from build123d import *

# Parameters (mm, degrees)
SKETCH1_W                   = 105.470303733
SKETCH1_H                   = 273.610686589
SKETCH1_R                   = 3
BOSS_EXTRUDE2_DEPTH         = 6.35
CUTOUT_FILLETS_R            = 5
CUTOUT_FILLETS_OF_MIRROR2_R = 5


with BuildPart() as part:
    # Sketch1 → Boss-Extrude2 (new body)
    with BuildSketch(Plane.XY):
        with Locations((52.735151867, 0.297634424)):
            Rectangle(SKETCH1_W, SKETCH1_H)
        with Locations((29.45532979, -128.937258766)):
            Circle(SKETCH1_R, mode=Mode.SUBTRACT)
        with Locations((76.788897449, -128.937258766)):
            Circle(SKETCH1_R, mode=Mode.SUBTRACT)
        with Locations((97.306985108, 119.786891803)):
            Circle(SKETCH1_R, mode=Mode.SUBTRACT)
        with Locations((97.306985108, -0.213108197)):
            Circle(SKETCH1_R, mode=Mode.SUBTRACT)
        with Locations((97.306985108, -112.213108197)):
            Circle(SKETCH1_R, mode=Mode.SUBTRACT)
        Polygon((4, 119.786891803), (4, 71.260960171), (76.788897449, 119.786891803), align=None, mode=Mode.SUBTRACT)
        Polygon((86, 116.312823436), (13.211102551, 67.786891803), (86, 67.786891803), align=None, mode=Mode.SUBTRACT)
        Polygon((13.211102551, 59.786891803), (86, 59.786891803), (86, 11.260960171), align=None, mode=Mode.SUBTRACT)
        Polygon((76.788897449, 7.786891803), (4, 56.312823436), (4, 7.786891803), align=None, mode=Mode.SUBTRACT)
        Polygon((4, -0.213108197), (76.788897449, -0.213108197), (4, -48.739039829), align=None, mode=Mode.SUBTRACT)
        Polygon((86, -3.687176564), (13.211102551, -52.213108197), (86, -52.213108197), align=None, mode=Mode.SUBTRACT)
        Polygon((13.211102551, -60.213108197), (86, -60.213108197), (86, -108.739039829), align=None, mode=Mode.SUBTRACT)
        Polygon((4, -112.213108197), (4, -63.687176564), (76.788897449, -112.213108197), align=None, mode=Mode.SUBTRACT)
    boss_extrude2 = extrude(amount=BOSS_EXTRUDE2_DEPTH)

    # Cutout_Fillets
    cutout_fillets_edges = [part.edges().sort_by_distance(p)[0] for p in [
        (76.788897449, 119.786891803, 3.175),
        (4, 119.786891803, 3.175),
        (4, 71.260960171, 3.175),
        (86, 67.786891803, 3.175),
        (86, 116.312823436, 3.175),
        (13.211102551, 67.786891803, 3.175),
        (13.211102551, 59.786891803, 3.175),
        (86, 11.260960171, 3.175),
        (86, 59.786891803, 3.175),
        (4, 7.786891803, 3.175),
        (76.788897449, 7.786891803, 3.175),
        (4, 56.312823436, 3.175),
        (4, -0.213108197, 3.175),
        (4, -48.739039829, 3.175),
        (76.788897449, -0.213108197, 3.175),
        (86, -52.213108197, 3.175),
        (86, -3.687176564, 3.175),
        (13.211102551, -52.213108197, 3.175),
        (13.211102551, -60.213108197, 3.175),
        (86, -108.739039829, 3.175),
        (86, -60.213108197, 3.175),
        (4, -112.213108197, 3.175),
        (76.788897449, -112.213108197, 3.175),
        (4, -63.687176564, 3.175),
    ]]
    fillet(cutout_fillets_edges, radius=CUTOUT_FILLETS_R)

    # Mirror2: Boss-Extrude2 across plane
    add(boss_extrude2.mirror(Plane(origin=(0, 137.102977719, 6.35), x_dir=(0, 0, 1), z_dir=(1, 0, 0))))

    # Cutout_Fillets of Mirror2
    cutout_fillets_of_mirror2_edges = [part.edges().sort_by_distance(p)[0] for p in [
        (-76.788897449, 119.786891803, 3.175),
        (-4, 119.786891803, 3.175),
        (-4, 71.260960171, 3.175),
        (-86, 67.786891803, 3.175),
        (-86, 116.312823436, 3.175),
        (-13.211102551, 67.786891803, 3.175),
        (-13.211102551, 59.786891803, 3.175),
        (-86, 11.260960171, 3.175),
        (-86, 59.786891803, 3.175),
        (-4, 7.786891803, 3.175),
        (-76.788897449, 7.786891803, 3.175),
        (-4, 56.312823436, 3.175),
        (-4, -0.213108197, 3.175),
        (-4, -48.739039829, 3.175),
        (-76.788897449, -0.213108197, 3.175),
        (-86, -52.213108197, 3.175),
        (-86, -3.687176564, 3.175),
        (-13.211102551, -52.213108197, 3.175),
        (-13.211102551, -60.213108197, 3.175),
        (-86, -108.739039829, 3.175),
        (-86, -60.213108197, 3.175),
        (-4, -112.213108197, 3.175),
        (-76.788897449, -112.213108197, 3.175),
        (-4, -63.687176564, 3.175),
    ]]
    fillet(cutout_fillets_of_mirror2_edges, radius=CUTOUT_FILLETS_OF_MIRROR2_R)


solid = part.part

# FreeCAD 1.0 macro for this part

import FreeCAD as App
import Part
import Sketcher
Q = App.Units.Quantity


def edges_at(feature, points):
    """Names of the edges that pass closest to the given points."""
    edges = feature.Shape.Edges
    near = lambda p: min(range(len(edges)), key=lambda i: edges[i].distToShape(Part.Vertex(*p))[0])
    return sorted({f"Edge{near(p) + 1}" for p in points})


def add_polygon(sketch, points):
    """Adds a closed chain of lines whose ends are joined by coincident constraints."""
    first, n = sketch.GeometryCount, len(points)
    for a, b in zip(points, points[1:] + points[:1]):
        sketch.addGeometry(Part.LineSegment(App.Vector(*a, 0), App.Vector(*b, 0)), False)
    for i in range(n):
        sketch.addConstraint(Sketcher.Constraint("Coincident", first + i, 2, first + (i + 1) % n, 1))

doc = App.newDocument("Part")
body = doc.addObject("PartDesign::Body", "Body")

sketch1 = body.newObject("Sketcher::SketchObject", "Sketch")
sketch1.AttachmentSupport = (doc.getObject("XY_Plane"), [""])
sketch1.MapMode = "FlatFace"
add_polygon(sketch1, [(0, 137.1), (0, -136.5), (105.5, -136.5), (105.5, 137.1)])
sketch1.addGeometry(Part.Circle(App.Vector(29.5, -128.9, 0), App.Vector(0, 0, 1), 3), False)
add_polygon(sketch1, [(76.8, -112.2), (4, -112.2), (4, -63.7)])
add_polygon(sketch1, [(86, -108.7), (13.2, -60.2), (86, -60.2)])
add_polygon(sketch1, [(4, -48.7), (4, -0.2), (76.8, -0.2)])
add_polygon(sketch1, [(13.2, -52.2), (86, -3.7), (86, -52.2)])
sketch1.addGeometry(Part.Circle(App.Vector(76.8, -128.9, 0), App.Vector(0, 0, 1), 3), False)
sketch1.addGeometry(Part.Circle(App.Vector(97.3, -112.2, 0), App.Vector(0, 0, 1), 3), False)
add_polygon(sketch1, [(4, 56.3), (76.8, 7.8), (4, 7.8)])
add_polygon(sketch1, [(86, 11.3), (13.2, 59.8), (86, 59.8)])
add_polygon(sketch1, [(4, 71.3), (4, 119.8), (76.8, 119.8)])
add_polygon(sketch1, [(13.2, 67.8), (86, 116.3), (86, 67.8)])
sketch1.addGeometry(Part.Circle(App.Vector(97.3, -0.2, 0), App.Vector(0, 0, 1), 3), False)
sketch1.addGeometry(Part.Circle(App.Vector(97.3, 119.8, 0), App.Vector(0, 0, 1), 3), False)
sketch1.addConstraint([
    Sketcher.Constraint("Vertical", 0),
    Sketcher.Constraint("Horizontal", 1),
    Sketcher.Constraint("Vertical", 2),
    Sketcher.Constraint("Horizontal", 3),
    Sketcher.Constraint("Horizontal", 5),
    Sketcher.Constraint("Vertical", 6),
    Sketcher.Constraint("Horizontal", 9),
    Sketcher.Constraint("Vertical", 10),
    Sketcher.Constraint("Vertical", 11),
    Sketcher.Constraint("Horizontal", 12),
    Sketcher.Constraint("Vertical", 15),
    Sketcher.Constraint("Horizontal", 16),
    Sketcher.Constraint("Horizontal", 20),
    Sketcher.Constraint("Vertical", 21),
    Sketcher.Constraint("Horizontal", 23),
    Sketcher.Constraint("Vertical", 24),
    Sketcher.Constraint("Vertical", 25),
    Sketcher.Constraint("Horizontal", 26),
    Sketcher.Constraint("Vertical", 29),
    Sketcher.Constraint("Horizontal", 30),
    Sketcher.Constraint("Equal", 4, 17),
    Sketcher.Constraint("Equal", 17, 18),
    Sketcher.Constraint("Equal", 18, 31),
    Sketcher.Constraint("Equal", 31, 32),
    Sketcher.Constraint("PointOnObject", 0, 2, -2),
    Sketcher.Constraint("Parallel", 7, 8),
    Sketcher.Constraint("Parallel", 13, 14),
    Sketcher.Constraint("Parallel", 8, 19),
    Sketcher.Constraint("Parallel", 19, 22),
    Sketcher.Constraint("Parallel", 14, 27),
    Sketcher.Constraint("Parallel", 27, 28),
    Sketcher.Constraint("Horizontal", 4, 3, 17, 3),
    Sketcher.Constraint("Horizontal", 18, 3, 5, 2),
    Sketcher.Constraint("Horizontal", 31, 3, 11, 2),
    Sketcher.Constraint("Horizontal", 32, 3, 25, 2),
    Sketcher.Constraint("Vertical", 18, 3, 31, 3),
    Sketcher.Constraint("Vertical", 31, 3, 32, 3),
    Sketcher.Constraint("Vertical", 17, 3, 7, 2),
    Sketcher.Constraint("Vertical", 6, 2, 11, 2),
    Sketcher.Constraint("Vertical", 7, 2, 12, 2),
    Sketcher.Constraint("Vertical", 10, 2, 14, 2),
    Sketcher.Constraint("Vertical", 8, 2, 16, 2),
    Sketcher.Constraint("Vertical", 12, 2, 19, 2),
    Sketcher.Constraint("Vertical", 13, 2, 20, 2),
    Sketcher.Constraint("Vertical", 16, 2, 22, 2),
    Sketcher.Constraint("Vertical", 15, 2, 23, 2),
    Sketcher.Constraint("Vertical", 21, 2, 25, 2),
    Sketcher.Constraint("Vertical", 19, 2, 26, 2),
    Sketcher.Constraint("Vertical", 24, 2, 28, 2),
    Sketcher.Constraint("Vertical", 22, 2, 30, 2),
    Sketcher.Constraint("Equal", 5, 9),
    Sketcher.Constraint("Equal", 10, 11),
    Sketcher.Constraint("Diameter", 4, Q("6 mm")),
    Sketcher.Constraint("DistanceX", -1, 1, 5, 2, Q("4 mm")),
    Sketcher.Constraint("DistanceX", -1, 1, 9, 2, Q("86 mm")),
    Sketcher.Constraint("DistanceY", 18, 3, 31, 3, Q("112 mm")),
    Sketcher.Constraint("DistanceY", 31, 3, 32, 3, Q("120 mm")),
    Sketcher.Constraint("DistanceY", 5, 2, 8, 2, Q("52 mm")),
    Sketcher.Constraint("DistanceY", 9, 2, 15, 2, Q("8 mm")),
    Sketcher.Constraint("DistanceY", 12, 2, 19, 2, Q("8 mm")),
    Sketcher.Constraint("DistanceY", 20, 2, 22, 2, Q("52 mm")),
    Sketcher.Constraint("DistanceY", 23, 2, 29, 2, Q("8 mm")),
    Sketcher.Constraint("DistanceY", 6, 1, 6, 2, Q("48.525932 mm")),
    Sketcher.Constraint("DistanceY", 0, 2, 18, 3, Q("24.294601 mm")),
    Sketcher.Constraint("DistanceX", 1, 1, 1, 2, Q("105.470304 mm")),
    Sketcher.Constraint("DistanceX", 5, 2, 5, 1, Q("72.788897 mm")),
    Sketcher.Constraint("DistanceY", 0, 2, 0, 1, Q("273.610687 mm")),
    Sketcher.Constraint("DistanceX", -1, 1, 4, 3, Q("29.45533 mm")),
    Sketcher.Constraint("DistanceY", 4, 3, -1, 1, Q("128.937259 mm")),
    Sketcher.Constraint("DistanceY", 18, 3, -1, 1, Q("112.213108 mm")),
    Sketcher.Constraint("DistanceX", 18, 3, 1, 2, Q("8.163319 mm")),
])
pad1 = body.newObject("PartDesign::Pad", "Pad")
pad1.Profile = sketch1
pad1.Length = 6.35
doc.recompute()

fillet = body.newObject("PartDesign::Fillet", "Fillet")
fillet.Base = (pad1, edges_at(pad1, [
    (76.789, 119.787, 3.175),
    (4, 119.787, 3.175),
    (4, 71.261, 3.175),
    (86, 67.787, 3.175),
    (86, 116.313, 3.175),
    (13.211, 67.787, 3.175),
    (13.211, 59.787, 3.175),
    (86, 11.261, 3.175),
    (86, 59.787, 3.175),
    (4, 7.787, 3.175),
    (76.789, 7.787, 3.175),
    (4, 56.313, 3.175),
    (4, -0.213, 3.175),
    (4, -48.739, 3.175),
    (76.789, -0.213, 3.175),
    (86, -52.213, 3.175),
    (86, -3.687, 3.175),
    (13.211, -52.213, 3.175),
    (13.211, -60.213, 3.175),
    (86, -108.739, 3.175),
    (86, -60.213, 3.175),
    (4, -112.213, 3.175),
    (76.789, -112.213, 3.175),
    (4, -63.687, 3.175),
]))
fillet.Radius = 5
doc.recompute()

mirrored = body.newObject("PartDesign::Mirrored", "Mirrored")
mirrored.Originals = [pad1]
mirrored.MirrorPlane = (doc.getObject("YZ_Plane"), [""])
body.Tip = mirrored
doc.recompute()

fillet2 = body.newObject("PartDesign::Fillet", "Fillet001")
fillet2.Base = (mirrored, edges_at(mirrored, [
    (-76.789, 119.787, 3.175),
    (-4, 119.787, 3.175),
    (-4, 71.261, 3.175),
    (-86, 67.787, 3.175),
    (-86, 116.313, 3.175),
    (-13.211, 67.787, 3.175),
    (-13.211, 59.787, 3.175),
    (-86, 11.261, 3.175),
    (-86, 59.787, 3.175),
    (-4, 7.787, 3.175),
    (-76.789, 7.787, 3.175),
    (-4, 56.313, 3.175),
    (-4, -0.213, 3.175),
    (-4, -48.739, 3.175),
    (-76.789, -0.213, 3.175),
    (-86, -52.213, 3.175),
    (-86, -3.687, 3.175),
    (-13.211, -52.213, 3.175),
    (-13.211, -60.213, 3.175),
    (-86, -108.739, 3.175),
    (-86, -60.213, 3.175),
    (-4, -112.213, 3.175),
    (-76.789, -112.213, 3.175),
    (-4, -63.687, 3.175),
]))
fillet2.Radius = 5

doc.recompute()
